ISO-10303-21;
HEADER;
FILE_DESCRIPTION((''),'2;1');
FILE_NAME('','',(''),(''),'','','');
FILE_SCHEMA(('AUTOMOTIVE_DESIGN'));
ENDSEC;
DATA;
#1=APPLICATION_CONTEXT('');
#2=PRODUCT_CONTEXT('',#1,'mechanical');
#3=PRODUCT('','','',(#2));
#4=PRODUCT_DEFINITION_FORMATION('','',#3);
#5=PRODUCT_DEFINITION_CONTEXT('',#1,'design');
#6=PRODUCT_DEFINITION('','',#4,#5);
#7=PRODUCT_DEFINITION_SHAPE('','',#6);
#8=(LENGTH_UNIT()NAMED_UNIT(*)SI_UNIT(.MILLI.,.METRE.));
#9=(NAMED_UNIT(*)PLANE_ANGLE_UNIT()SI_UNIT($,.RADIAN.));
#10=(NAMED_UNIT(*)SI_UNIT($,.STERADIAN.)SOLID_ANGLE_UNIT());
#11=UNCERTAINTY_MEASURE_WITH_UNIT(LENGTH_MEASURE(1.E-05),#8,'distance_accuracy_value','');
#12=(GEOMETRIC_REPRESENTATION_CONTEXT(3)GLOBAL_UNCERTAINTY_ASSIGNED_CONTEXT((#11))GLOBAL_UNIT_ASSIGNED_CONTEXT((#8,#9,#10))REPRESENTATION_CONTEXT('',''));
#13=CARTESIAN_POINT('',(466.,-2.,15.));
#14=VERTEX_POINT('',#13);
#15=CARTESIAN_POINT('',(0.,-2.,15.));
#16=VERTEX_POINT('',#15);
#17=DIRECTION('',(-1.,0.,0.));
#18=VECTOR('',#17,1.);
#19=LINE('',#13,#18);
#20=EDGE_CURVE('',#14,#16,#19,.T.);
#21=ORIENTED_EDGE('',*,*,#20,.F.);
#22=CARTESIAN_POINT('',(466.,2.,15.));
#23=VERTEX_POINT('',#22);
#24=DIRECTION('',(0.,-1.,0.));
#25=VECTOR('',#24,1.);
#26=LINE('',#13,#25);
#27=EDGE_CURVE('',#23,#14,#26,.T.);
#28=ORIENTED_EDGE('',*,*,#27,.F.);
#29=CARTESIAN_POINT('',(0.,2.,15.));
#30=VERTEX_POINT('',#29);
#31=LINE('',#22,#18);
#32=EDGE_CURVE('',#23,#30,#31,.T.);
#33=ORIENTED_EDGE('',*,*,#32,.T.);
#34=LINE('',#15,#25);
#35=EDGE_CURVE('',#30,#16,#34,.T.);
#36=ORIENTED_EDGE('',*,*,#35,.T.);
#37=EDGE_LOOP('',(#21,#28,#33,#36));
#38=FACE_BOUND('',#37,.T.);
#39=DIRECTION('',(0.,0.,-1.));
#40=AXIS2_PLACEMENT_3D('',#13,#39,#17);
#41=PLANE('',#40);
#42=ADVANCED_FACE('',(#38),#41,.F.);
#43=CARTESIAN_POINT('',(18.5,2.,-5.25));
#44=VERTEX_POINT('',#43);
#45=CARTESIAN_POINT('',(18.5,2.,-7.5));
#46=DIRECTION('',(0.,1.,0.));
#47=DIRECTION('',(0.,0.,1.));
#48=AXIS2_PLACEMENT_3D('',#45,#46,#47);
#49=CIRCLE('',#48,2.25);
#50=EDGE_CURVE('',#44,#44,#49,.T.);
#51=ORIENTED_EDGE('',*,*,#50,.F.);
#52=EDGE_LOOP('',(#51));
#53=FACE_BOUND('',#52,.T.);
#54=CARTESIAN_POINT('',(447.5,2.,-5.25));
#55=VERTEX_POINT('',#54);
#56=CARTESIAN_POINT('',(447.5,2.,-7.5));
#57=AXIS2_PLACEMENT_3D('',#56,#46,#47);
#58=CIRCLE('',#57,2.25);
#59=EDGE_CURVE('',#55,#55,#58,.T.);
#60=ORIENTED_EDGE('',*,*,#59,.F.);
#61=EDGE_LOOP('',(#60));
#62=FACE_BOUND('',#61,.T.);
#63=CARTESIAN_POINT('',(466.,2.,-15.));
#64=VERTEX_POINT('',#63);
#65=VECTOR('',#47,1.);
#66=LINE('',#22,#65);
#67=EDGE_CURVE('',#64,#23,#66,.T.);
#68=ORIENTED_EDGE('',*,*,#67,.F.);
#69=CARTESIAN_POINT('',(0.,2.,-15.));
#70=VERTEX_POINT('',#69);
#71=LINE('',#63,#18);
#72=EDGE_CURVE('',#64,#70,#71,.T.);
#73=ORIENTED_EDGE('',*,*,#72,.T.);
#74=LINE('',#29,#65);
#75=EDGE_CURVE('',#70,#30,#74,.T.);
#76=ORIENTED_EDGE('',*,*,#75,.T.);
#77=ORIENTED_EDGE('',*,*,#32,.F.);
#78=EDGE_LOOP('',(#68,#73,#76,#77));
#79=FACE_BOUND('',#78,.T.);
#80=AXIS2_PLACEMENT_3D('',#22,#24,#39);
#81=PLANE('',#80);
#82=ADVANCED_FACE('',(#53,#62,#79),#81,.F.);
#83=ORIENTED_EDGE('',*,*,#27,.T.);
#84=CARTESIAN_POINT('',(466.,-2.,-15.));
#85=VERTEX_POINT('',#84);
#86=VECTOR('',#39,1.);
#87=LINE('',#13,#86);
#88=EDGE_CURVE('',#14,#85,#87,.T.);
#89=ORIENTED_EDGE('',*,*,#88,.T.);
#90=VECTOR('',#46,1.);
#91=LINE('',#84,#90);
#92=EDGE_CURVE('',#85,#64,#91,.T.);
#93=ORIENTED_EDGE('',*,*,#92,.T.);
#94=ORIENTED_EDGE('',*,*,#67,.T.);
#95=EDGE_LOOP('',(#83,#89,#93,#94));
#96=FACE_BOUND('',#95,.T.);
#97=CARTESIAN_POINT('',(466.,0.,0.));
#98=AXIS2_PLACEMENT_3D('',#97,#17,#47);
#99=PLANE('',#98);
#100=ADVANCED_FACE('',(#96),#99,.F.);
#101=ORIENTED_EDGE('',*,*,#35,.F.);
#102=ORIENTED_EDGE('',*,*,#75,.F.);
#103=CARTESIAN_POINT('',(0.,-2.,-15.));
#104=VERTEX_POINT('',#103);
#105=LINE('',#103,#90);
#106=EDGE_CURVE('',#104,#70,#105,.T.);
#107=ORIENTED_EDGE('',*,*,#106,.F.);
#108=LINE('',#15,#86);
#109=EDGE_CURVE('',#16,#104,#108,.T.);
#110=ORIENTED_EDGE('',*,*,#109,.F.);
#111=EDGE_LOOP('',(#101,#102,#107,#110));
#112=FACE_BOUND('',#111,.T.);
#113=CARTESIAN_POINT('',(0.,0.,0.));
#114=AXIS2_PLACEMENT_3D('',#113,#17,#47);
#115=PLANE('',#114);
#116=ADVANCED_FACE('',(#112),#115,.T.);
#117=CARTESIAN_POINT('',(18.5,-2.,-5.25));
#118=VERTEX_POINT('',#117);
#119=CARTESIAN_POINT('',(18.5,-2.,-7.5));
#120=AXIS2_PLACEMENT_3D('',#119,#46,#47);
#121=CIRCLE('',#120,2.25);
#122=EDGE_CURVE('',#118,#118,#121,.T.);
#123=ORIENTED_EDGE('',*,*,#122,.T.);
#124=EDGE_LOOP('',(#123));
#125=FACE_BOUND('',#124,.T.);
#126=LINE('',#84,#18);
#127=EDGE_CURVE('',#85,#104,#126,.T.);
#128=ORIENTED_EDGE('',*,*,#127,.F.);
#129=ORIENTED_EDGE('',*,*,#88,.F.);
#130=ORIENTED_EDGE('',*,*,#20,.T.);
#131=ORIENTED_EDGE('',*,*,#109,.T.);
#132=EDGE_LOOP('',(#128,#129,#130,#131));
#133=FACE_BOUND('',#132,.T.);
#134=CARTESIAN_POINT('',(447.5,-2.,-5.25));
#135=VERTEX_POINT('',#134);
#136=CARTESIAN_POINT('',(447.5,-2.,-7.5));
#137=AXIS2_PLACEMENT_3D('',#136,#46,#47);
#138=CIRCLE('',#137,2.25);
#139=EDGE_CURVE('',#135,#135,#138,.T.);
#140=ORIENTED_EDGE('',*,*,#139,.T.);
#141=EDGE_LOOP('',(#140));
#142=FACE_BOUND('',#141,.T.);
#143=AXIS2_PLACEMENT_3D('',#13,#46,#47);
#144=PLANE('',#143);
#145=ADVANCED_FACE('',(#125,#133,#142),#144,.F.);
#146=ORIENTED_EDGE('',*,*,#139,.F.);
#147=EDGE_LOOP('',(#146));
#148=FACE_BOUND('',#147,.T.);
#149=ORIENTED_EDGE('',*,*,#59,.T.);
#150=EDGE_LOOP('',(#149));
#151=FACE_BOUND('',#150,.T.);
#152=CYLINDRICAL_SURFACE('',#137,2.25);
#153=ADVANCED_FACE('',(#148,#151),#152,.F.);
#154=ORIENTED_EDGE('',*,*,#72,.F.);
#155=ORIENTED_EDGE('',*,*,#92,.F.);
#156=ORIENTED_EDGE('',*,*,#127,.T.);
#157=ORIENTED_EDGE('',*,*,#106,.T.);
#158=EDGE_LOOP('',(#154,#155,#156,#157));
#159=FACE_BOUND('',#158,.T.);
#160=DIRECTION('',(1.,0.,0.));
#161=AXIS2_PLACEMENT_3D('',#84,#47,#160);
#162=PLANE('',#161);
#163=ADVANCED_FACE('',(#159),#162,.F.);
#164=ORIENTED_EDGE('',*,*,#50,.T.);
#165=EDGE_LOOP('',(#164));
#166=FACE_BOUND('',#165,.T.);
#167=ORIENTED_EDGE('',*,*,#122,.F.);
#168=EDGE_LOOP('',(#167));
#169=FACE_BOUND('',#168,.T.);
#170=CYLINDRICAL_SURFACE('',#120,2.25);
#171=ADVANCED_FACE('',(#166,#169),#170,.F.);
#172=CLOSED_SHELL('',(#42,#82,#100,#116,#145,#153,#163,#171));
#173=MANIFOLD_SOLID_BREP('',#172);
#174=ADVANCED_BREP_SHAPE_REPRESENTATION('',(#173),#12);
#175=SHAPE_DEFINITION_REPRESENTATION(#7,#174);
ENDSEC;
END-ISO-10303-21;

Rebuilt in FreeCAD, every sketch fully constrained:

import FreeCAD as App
import Part
import Sketcher


def add_polygon(sketch, points):
    """Adds a closed chain of lines whose ends are joined by coincident constraints."""
    first, n = sketch.GeometryCount, len(points)
    for a, b in zip(points, points[1:] + points[:1]):
        sketch.addGeometry(Part.LineSegment(App.Vector(*a, 0), App.Vector(*b, 0)), False)
    for i in range(n):
        sketch.addConstraint(Sketcher.Constraint("Coincident", first + i, 2, first + (i + 1) % n, 1))

doc = App.newDocument("Part")
body = doc.addObject("PartDesign::Body", "Body")

# Sketch on YZ plane
sketch1 = doc.addObject("Sketcher::SketchObject", "Sketch")
body.addObject(sketch1)
sketch1.AttachmentSupport = (doc.YZ_Plane, [""])
sketch1.MapMode = "FlatFace"
add_polygon(sketch1, [(2, 15), (-2, 15), (-2, -15), (2, -15)])  # lines 0-3
sketch1.addConstraint([
    Sketcher.Constraint("Horizontal", 0),
    Sketcher.Constraint("Vertical", 1),
    Sketcher.Constraint("Horizontal", 2),
    Sketcher.Constraint("Vertical", 3),
    Sketcher.Constraint("Symmetric", 0, 2, 2, 2, -1, 1),
    Sketcher.Constraint("DistanceX", 0, 2, 0, 1, 4.0),
    Sketcher.Constraint("DistanceY", 1, 2, 1, 1, 30.0),
])
pad1 = doc.addObject("PartDesign::Pad", "Pad")
body.addObject(pad1)
pad1.Profile = sketch1
pad1.Length = 466

# Sketch on XZ plane
sketch2 = doc.addObject("Sketcher::SketchObject", "Sketch001")
body.addObject(sketch2)
sketch2.AttachmentSupport = (doc.XZ_Plane, [""])
sketch2.MapMode = "FlatFace"
sketch2.AttachmentOffset = App.Placement(App.Vector(0, 0, -2), App.Rotation())
sketch2.addGeometry([
    Part.Circle(App.Vector(18.5, -7.5, 0), App.Vector(0, 0, 1), 2.2),
    Part.Circle(App.Vector(447.5, -7.5, 0), App.Vector(0, 0, 1), 2.2),
], False)
sketch2.addConstraint([
    Sketcher.Constraint("Equal", 0, 1),
    Sketcher.Constraint("Horizontal", 0, 3, 1, 3),
    Sketcher.Constraint("Diameter", 0, 4.5),
    Sketcher.Constraint("DistanceX", 0, 3, 1, 3, 429.0),
    Sketcher.Constraint("DistanceX", -1, 1, 0, 3, 18.5),
    Sketcher.Constraint("DistanceY", 0, 3, -1, 1, 7.5),
])
pocket1 = doc.addObject("PartDesign::Pocket", "Pocket")
body.addObject(pocket1)
pocket1.Profile = sketch2
pocket1.Type = "ThroughAll"
pocket1.Reversed = True

doc.recompute()
